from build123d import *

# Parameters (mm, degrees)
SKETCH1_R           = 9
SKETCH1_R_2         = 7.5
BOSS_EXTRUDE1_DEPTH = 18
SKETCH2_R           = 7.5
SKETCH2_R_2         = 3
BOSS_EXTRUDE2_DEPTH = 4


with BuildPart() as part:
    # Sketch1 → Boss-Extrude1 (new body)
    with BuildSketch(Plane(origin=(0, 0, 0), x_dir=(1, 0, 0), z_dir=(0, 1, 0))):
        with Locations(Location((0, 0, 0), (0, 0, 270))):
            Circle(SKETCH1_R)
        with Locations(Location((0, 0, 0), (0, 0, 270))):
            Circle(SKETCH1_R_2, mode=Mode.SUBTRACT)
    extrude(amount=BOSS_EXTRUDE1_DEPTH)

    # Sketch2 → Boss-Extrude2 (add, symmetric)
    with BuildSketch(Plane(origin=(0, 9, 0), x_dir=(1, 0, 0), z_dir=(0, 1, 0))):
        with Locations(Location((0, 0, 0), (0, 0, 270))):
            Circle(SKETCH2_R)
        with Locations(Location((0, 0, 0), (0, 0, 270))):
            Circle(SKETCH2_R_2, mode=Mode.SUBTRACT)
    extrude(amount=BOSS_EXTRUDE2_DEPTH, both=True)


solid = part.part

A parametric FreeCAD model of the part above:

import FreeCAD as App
import Part
import Sketcher
Q = App.Units.Quantity

doc = App.newDocument("Part")
body = doc.addObject("PartDesign::Body", "Body")

# Sketch on XZ plane
sketch1 = doc.addObject("Sketcher::SketchObject", "Sketch")
body.addObject(sketch1)
sketch1.AttachmentSupport = (doc.XZ_Plane, [""])
sketch1.MapMode = "FlatFace"
sketch1.addGeometry([
    Part.Circle(App.Vector(0, 0, 0), App.Vector(0, 0, 1), 9),
    Part.Circle(App.Vector(0, 0, 0), App.Vector(0, 0, 1), 8),
], False)
sketch1.addConstraint([
    Sketcher.Constraint("Coincident", 0, 3, -1, 1),
    Sketcher.Constraint("Coincident", 1, 3, -1, 1),
    Sketcher.Constraint("Diameter", 0, Q("18 mm")),
    Sketcher.Constraint("Diameter", 1, Q("15 mm")),
])
pad1 = doc.addObject("PartDesign::Pad", "Pad")
body.addObject(pad1)
pad1.Profile = sketch1
pad1.Length = 18
pad1.Reversed = True

# Sketch on XZ plane
sketch2 = doc.addObject("Sketcher::SketchObject", "Sketch001")
body.addObject(sketch2)
sketch2.AttachmentSupport = (doc.XZ_Plane, [""])
sketch2.MapMode = "FlatFace"
sketch2.AttachmentOffset = App.Placement(App.Vector(0, 0, -9), App.Rotation())
sketch2.addGeometry([
    Part.Circle(App.Vector(0, 0, 0), App.Vector(0, 0, 1), 7.5),
    Part.Circle(App.Vector(0, 0, 0), App.Vector(0, 0, 1), 3),
], False)
sketch2.addConstraint([
    Sketcher.Constraint("Coincident", 0, 3, -1, 1),
    Sketcher.Constraint("Coincident", 1, 3, -1, 1),
    Sketcher.Constraint("Diameter", 0, Q("15 mm")),
    Sketcher.Constraint("Diameter", 1, Q("6 mm")),
])
pad2 = doc.addObject("PartDesign::Pad", "Pad001")
body.addObject(pad2)
pad2.Profile = sketch2
pad2.Length = 8
pad2.Midplane = True

doc.recompute()
